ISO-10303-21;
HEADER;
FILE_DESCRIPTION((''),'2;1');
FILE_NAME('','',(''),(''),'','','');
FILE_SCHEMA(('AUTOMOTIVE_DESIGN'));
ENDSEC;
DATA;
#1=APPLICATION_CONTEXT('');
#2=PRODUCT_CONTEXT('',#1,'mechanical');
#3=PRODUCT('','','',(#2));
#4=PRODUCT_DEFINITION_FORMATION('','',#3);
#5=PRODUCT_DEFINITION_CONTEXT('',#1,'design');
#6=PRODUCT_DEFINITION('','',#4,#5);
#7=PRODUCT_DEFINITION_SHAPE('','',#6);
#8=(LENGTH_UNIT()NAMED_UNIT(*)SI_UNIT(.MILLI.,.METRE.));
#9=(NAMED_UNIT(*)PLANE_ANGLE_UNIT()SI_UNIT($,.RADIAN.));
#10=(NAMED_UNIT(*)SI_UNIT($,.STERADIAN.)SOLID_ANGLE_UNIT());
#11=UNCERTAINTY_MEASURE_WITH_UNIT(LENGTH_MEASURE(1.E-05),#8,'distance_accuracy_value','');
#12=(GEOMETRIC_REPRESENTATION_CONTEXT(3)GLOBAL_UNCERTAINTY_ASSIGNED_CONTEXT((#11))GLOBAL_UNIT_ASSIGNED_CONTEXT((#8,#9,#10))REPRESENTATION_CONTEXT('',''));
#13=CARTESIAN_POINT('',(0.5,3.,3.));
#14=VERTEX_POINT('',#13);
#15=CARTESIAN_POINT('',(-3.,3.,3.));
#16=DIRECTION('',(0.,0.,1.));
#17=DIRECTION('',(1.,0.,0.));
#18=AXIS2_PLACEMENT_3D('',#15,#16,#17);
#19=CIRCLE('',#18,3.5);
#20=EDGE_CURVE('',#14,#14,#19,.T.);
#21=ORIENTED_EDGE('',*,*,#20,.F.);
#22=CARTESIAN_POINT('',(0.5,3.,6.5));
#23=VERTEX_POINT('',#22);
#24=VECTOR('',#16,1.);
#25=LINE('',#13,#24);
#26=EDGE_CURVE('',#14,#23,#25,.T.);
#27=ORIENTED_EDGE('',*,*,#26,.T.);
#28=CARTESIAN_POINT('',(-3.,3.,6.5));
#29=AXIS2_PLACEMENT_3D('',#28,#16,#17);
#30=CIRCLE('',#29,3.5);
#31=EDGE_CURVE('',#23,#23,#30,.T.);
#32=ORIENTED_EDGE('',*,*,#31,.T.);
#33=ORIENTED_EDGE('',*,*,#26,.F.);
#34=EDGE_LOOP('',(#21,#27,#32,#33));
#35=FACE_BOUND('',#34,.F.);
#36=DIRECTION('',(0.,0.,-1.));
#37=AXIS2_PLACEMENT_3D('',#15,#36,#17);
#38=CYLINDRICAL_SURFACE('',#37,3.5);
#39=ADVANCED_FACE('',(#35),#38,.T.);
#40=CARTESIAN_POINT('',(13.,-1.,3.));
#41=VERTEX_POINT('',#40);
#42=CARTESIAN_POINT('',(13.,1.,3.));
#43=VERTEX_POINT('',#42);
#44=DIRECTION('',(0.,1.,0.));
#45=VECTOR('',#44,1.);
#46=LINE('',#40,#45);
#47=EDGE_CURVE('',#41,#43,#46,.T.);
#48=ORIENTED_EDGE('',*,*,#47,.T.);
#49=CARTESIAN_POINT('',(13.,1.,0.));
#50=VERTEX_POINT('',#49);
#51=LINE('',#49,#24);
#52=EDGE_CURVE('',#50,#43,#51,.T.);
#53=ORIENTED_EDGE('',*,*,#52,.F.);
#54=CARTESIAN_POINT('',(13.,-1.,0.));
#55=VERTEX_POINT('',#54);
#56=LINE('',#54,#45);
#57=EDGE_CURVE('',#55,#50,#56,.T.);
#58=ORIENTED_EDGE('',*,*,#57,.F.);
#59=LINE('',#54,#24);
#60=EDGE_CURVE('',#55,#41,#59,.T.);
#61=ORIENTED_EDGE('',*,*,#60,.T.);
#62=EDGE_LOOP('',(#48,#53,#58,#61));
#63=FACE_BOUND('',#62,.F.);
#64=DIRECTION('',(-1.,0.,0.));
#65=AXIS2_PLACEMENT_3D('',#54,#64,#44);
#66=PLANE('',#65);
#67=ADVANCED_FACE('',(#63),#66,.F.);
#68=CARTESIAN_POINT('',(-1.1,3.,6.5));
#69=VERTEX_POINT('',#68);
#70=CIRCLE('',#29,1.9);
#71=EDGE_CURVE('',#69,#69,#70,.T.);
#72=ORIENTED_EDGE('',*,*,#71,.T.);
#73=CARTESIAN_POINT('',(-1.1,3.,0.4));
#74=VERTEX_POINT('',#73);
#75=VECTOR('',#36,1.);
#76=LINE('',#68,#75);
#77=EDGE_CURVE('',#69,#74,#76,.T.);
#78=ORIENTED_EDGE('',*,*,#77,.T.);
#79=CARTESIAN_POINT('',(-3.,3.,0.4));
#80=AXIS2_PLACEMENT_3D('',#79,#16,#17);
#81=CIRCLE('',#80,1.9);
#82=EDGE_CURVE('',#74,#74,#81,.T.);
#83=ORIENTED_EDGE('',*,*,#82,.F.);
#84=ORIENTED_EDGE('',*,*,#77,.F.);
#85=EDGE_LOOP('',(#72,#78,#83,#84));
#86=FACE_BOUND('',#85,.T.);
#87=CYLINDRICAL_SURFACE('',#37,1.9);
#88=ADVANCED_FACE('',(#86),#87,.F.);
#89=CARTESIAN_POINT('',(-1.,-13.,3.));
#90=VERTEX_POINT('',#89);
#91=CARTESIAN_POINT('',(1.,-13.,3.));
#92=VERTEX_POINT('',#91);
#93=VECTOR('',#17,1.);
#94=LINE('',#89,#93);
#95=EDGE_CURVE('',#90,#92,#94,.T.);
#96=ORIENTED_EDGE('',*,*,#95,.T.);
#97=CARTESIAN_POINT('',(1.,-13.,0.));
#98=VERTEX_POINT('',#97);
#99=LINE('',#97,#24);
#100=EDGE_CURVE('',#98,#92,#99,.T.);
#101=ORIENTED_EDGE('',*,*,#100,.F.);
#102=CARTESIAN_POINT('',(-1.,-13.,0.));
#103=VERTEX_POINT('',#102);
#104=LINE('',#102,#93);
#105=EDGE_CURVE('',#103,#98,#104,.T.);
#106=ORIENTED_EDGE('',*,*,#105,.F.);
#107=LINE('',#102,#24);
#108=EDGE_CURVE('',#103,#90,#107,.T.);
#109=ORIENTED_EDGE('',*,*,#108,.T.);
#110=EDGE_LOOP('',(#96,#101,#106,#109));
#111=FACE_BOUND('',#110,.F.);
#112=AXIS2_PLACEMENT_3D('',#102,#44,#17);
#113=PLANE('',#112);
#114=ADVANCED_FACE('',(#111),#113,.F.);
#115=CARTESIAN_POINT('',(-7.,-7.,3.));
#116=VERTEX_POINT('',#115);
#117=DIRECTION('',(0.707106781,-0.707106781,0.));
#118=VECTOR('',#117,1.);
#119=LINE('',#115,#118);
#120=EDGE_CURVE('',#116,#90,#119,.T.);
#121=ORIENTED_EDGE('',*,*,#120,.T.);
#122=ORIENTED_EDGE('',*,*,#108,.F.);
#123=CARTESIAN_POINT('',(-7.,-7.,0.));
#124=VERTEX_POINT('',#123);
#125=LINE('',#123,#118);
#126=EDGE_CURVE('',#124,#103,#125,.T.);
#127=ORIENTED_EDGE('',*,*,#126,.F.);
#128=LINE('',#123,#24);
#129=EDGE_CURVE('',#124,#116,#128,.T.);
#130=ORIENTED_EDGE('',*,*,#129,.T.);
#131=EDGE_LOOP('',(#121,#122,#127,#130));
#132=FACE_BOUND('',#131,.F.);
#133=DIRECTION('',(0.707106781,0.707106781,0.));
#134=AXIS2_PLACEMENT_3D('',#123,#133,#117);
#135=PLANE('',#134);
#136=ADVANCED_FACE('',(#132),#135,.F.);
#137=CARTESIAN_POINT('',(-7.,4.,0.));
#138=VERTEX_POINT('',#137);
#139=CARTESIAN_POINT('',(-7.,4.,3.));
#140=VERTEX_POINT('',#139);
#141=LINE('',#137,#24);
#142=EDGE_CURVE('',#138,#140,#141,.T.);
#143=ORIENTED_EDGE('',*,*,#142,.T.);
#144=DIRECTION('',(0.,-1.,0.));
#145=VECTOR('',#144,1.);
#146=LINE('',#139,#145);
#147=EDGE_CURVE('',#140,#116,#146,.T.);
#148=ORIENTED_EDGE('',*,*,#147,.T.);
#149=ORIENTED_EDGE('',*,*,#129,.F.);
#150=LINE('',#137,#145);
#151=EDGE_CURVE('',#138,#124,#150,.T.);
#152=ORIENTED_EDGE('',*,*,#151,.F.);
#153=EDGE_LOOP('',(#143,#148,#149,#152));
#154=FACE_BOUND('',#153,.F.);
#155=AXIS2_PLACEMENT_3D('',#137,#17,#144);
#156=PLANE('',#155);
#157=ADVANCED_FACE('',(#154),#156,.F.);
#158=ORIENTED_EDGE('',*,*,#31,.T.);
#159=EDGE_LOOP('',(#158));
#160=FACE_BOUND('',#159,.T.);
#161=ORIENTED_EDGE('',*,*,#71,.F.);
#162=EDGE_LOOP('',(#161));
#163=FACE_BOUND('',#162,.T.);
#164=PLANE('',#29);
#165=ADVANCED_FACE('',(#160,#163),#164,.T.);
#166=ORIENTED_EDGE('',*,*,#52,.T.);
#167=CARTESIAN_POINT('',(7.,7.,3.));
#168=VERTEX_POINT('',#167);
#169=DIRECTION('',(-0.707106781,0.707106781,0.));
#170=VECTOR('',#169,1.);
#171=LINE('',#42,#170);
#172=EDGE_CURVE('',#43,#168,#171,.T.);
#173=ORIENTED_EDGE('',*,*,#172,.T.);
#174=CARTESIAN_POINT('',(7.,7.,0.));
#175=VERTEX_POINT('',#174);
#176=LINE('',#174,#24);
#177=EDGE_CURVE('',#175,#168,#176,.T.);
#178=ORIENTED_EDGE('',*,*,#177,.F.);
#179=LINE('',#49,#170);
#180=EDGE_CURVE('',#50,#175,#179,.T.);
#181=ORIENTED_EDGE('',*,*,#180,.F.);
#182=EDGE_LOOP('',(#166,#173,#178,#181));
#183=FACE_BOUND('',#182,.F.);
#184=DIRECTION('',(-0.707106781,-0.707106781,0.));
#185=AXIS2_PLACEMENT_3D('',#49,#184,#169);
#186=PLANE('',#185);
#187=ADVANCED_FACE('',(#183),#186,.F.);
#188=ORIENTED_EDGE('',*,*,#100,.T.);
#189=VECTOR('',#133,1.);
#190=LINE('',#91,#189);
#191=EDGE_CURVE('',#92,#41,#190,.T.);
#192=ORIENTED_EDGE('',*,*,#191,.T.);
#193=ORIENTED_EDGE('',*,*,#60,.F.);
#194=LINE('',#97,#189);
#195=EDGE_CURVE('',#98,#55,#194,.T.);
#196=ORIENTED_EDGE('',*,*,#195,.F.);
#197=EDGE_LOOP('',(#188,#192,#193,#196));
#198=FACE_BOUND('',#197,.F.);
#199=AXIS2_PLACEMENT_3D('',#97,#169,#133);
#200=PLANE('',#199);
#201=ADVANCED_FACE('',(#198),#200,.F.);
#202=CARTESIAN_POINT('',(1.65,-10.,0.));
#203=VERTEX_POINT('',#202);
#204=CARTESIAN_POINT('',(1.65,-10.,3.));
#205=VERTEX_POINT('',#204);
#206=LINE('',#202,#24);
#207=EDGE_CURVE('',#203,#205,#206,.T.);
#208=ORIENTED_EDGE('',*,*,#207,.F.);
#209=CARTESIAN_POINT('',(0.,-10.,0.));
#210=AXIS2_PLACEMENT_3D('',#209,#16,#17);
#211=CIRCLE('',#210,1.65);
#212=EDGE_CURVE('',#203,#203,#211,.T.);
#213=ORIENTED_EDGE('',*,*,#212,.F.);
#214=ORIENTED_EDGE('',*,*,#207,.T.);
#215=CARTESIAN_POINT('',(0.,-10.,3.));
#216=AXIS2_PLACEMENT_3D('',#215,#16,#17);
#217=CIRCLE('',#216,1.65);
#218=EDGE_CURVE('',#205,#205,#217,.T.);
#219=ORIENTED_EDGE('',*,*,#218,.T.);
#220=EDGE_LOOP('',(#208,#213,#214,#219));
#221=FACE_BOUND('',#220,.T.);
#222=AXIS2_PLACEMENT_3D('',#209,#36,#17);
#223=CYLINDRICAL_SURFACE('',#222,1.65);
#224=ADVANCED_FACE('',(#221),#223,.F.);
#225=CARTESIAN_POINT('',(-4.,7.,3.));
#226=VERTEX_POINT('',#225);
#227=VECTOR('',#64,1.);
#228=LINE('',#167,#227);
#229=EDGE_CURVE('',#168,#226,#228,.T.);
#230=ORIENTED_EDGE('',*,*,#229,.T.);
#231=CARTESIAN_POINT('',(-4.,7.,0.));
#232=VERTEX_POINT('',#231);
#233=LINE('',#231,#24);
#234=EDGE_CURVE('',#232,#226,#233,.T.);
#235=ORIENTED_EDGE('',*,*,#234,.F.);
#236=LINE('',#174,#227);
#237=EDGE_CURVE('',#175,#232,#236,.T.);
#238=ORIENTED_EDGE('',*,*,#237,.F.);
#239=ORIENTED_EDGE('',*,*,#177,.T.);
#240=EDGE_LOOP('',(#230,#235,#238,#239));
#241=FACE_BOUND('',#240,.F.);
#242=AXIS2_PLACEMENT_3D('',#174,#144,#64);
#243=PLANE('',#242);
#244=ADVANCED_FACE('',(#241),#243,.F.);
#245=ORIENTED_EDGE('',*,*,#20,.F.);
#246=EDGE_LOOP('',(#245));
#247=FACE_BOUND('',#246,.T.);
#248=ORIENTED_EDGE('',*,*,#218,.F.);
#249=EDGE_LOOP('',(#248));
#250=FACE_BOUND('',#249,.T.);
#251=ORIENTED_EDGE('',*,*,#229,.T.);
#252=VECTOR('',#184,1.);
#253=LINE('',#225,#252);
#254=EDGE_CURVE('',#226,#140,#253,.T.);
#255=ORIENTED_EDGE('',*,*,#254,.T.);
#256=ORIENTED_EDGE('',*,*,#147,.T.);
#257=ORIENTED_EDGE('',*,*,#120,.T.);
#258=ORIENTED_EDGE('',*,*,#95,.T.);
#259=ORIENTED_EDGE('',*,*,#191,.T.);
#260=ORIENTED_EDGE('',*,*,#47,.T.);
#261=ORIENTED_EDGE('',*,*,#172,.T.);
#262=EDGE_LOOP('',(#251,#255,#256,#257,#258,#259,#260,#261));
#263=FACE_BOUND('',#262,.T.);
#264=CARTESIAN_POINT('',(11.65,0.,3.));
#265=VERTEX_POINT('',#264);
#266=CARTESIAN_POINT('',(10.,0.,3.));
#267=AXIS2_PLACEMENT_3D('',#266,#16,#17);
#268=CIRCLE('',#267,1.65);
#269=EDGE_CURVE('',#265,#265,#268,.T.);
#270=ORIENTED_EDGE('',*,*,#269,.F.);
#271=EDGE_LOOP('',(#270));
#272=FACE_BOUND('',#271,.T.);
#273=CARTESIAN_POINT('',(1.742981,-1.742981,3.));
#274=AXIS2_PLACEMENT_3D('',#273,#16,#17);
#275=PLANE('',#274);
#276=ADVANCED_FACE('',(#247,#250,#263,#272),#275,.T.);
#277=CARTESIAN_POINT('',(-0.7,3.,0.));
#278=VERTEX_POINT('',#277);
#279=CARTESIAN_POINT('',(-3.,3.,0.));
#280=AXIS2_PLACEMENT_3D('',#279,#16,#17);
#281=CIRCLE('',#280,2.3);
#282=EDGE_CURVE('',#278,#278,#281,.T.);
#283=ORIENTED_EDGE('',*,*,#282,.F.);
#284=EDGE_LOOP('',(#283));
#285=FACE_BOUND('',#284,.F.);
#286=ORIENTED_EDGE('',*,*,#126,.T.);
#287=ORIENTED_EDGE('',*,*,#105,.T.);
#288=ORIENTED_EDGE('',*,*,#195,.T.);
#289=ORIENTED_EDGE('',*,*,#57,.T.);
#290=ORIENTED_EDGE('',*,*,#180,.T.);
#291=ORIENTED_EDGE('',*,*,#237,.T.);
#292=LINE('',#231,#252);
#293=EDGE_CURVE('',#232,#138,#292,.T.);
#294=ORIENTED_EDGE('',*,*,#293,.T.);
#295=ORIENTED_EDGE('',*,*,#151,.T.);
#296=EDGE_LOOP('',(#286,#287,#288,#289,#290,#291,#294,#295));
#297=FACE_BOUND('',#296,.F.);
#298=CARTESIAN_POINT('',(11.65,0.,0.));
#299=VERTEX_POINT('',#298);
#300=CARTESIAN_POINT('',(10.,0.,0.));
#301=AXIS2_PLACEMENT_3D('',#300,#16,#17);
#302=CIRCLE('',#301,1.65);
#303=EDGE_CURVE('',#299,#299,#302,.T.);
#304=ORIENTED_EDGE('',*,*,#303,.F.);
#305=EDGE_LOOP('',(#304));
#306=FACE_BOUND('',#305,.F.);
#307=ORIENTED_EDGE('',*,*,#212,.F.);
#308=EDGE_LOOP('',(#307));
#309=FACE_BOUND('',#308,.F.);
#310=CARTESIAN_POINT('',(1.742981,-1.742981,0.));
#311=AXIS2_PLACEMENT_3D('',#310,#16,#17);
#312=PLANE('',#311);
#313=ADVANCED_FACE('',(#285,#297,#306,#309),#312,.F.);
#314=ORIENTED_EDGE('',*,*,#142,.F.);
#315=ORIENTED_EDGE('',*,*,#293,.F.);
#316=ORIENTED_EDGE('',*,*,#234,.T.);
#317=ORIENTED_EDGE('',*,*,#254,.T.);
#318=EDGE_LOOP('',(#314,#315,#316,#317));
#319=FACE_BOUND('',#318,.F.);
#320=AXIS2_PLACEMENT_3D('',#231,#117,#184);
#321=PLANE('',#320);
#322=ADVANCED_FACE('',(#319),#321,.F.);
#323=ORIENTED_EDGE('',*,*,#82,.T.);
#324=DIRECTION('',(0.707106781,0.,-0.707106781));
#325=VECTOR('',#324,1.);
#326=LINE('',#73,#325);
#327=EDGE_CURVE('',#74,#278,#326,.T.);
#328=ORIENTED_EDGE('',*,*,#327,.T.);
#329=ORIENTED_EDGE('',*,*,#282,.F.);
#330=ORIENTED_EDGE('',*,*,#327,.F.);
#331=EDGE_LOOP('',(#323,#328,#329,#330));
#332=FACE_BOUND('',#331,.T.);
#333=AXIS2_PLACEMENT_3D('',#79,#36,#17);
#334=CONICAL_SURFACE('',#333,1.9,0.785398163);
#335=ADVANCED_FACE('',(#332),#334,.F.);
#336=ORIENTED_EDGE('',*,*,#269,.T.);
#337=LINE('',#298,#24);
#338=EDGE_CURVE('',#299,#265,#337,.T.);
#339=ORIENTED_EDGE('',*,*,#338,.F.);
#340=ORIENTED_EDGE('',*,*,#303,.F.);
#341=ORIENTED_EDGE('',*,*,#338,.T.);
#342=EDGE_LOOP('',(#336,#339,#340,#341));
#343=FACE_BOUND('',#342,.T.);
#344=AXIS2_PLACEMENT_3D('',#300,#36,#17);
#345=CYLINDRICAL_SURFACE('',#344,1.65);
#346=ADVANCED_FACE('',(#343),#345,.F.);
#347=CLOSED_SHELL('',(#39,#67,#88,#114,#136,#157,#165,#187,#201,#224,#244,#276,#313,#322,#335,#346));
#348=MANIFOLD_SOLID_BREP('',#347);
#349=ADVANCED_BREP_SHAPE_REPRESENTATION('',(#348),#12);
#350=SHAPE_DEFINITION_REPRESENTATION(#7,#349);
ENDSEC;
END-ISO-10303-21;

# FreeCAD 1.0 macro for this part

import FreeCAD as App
import Part
import Sketcher

V = App.Vector
Q = App.Units.Quantity


def edges_at(feature, points):
    """Names of the edges that pass closest to the given points."""
    edges = feature.Shape.Edges
    near = lambda p: min(range(len(edges)), key=lambda i: edges[i].distToShape(Part.Vertex(*p))[0])
    return sorted({f"Edge{near(p) + 1}" for p in points})

doc = App.newDocument("Part")
params = doc.addObject("Spreadsheet::Sheet", "Params")
for row, (alias, value) in enumerate([
    ("sketch1_diameter", "3.3 mm"),
    ("sketch1_diameter2", "3.8 mm"),
    ("sketch1_width", "2 mm"),
    ("sketch1_width2", "11 mm"),
    ("pad1_length", "3 mm"),
    ("sketch2_diameter", "7 mm"),
    ("sketch2_diameter2", "3.8 mm"),
    ("pad2_length", "3.5 mm"),
    ("chamfer_size", "0.4 mm"),
], start=1):
    params.set(f"A{row}", alias)
    params.set(f"B{row}", "=" + value)
    params.setAlias(f"B{row}", alias)

body = doc.addObject("PartDesign::Body", "Body")

# Sketch on XY plane
sketch1 = body.newObject("Sketcher::SketchObject", "Sketch")
sketch1.AttachmentSupport = (doc.getObject("XY_Plane"), [""])
sketch1.MapMode = "FlatFace"
sketch1.addGeometry([
    Part.LineSegment(V(-1, -13, 0), V(1, -13, 0)),  # 0
    Part.LineSegment(V(1, -13, 0), V(13, -1, 0)),  # 1
    Part.LineSegment(V(13, -1, 0), V(13, 1, 0)),  # 2
    Part.LineSegment(V(13, 1, 0), V(7, 7, 0)),  # 3
    Part.LineSegment(V(7, 7, 0), V(-4, 7, 0)),  # 4
    Part.LineSegment(V(-4, 7, 0), V(-7, 4, 0)),  # 5
    Part.LineSegment(V(-7, 4, 0), V(-7, -7, 0)),  # 6
    Part.LineSegment(V(-7, -7, 0), V(-1, -13, 0)),  # 7
    Part.Circle(V(0, -10, 0), V(0, 0, 1), 1.6),  # 8
    Part.Circle(V(-3, 3, 0), V(0, 0, 1), 1.9),  # 9
    Part.Circle(V(10, 0, 0), V(0, 0, 1), 1.6),  # 10
], False)
sketch1.addConstraint([
    Sketcher.Constraint("Coincident", 0, 2, 1, 1),
    Sketcher.Constraint("Coincident", 1, 2, 2, 1),
    Sketcher.Constraint("Coincident", 2, 2, 3, 1),
    Sketcher.Constraint("Coincident", 3, 2, 4, 1),
    Sketcher.Constraint("Coincident", 4, 2, 5, 1),
    Sketcher.Constraint("Coincident", 5, 2, 6, 1),
    Sketcher.Constraint("Coincident", 6, 2, 7, 1),
    Sketcher.Constraint("Coincident", 7, 2, 0, 1),
    Sketcher.Constraint("Horizontal", 0),
    Sketcher.Constraint("Vertical", 2),
    Sketcher.Constraint("Horizontal", 4),
    Sketcher.Constraint("Vertical", 6),
    Sketcher.Constraint("Equal", 8, 10),
    Sketcher.Constraint("Symmetric", 3, 2, 6, 2, -1, 1),
    Sketcher.Constraint("PointOnObject", 8, 3, -2),
    Sketcher.Constraint("PointOnObject", 10, 3, -1),
    Sketcher.Constraint("Perpendicular", 1, 3),
    Sketcher.Constraint("Perpendicular", 3, 5),
    Sketcher.Constraint("Perpendicular", 5, 7),
    Sketcher.Constraint("Equal", 0, 2),
    Sketcher.Constraint("Equal", 4, 6),
    Sketcher.Constraint("Equal", 3, 7),
    Sketcher.Constraint("Diameter", 8, Q("3.3 mm")),
    Sketcher.Constraint("Diameter", 9, Q("3.8 mm")),
    Sketcher.Constraint("DistanceX", 0, 1, 0, 2, Q("2 mm")),
    Sketcher.Constraint("DistanceX", 4, 2, 4, 1, Q("11 mm")),
    Sketcher.Constraint("DistanceY", 8, 3, -1, 1, Q("10 mm")),
    Sketcher.Constraint("DistanceX", 9, 3, -1, 1, Q("3 mm")),
    Sketcher.Constraint("DistanceY", -1, 1, 9, 3, Q("3 mm")),
    Sketcher.Constraint("DistanceX", -1, 1, 10, 3, Q("10 mm")),
    Sketcher.Constraint("DistanceX", -1, 1, 0, 2, Q("1 mm")),
    Sketcher.Constraint("DistanceY", 0, 2, -1, 1, Q("13 mm")),
])
sketch1.setExpression("Constraints[22]", "Params.sketch1_diameter")
sketch1.setExpression("Constraints[23]", "Params.sketch1_diameter2")
sketch1.setExpression("Constraints[24]", "Params.sketch1_width")
sketch1.setExpression("Constraints[25]", "Params.sketch1_width2")
pad1 = body.newObject("PartDesign::Pad", "Pad")
pad1.Profile = sketch1
pad1.setExpression("Length", "Params.pad1_length")

# Sketch on XY plane
sketch2 = body.newObject("Sketcher::SketchObject", "Sketch001")
sketch2.AttachmentSupport = (doc.getObject("XY_Plane"), [""])
sketch2.MapMode = "FlatFace"
sketch2.AttachmentOffset = App.Placement(V(0, 0, 3), App.Rotation())
sketch2.addGeometry([
    Part.Circle(V(-3, 3, 0), V(0, 0, 1), 3.5),
    Part.Circle(V(-3, 3, 0), V(0, 0, 1), 1.9),
], False)
sketch2.addConstraint([
    Sketcher.Constraint("Coincident", 1, 3, 0, 3),
    Sketcher.Constraint("Diameter", 0, Q("7 mm")),
    Sketcher.Constraint("Diameter", 1, Q("3.8 mm")),
    Sketcher.Constraint("DistanceX", 0, 3, -1, 1, Q("3 mm")),
    Sketcher.Constraint("DistanceY", -1, 1, 0, 3, Q("3 mm")),
])
sketch2.setExpression("Constraints[1]", "Params.sketch2_diameter")
sketch2.setExpression("Constraints[2]", "Params.sketch2_diameter2")
pad2 = body.newObject("PartDesign::Pad", "Pad001")
pad2.Profile = sketch2
pad2.setExpression("Length", "Params.pad2_length")
doc.recompute()

chamfer = body.newObject("PartDesign::Chamfer", "Chamfer")
chamfer.Base = (pad2, edges_at(pad2, [(-4.9, 3, 0)]))
chamfer.setExpression("Size", "Params.chamfer_size")

doc.recompute()
